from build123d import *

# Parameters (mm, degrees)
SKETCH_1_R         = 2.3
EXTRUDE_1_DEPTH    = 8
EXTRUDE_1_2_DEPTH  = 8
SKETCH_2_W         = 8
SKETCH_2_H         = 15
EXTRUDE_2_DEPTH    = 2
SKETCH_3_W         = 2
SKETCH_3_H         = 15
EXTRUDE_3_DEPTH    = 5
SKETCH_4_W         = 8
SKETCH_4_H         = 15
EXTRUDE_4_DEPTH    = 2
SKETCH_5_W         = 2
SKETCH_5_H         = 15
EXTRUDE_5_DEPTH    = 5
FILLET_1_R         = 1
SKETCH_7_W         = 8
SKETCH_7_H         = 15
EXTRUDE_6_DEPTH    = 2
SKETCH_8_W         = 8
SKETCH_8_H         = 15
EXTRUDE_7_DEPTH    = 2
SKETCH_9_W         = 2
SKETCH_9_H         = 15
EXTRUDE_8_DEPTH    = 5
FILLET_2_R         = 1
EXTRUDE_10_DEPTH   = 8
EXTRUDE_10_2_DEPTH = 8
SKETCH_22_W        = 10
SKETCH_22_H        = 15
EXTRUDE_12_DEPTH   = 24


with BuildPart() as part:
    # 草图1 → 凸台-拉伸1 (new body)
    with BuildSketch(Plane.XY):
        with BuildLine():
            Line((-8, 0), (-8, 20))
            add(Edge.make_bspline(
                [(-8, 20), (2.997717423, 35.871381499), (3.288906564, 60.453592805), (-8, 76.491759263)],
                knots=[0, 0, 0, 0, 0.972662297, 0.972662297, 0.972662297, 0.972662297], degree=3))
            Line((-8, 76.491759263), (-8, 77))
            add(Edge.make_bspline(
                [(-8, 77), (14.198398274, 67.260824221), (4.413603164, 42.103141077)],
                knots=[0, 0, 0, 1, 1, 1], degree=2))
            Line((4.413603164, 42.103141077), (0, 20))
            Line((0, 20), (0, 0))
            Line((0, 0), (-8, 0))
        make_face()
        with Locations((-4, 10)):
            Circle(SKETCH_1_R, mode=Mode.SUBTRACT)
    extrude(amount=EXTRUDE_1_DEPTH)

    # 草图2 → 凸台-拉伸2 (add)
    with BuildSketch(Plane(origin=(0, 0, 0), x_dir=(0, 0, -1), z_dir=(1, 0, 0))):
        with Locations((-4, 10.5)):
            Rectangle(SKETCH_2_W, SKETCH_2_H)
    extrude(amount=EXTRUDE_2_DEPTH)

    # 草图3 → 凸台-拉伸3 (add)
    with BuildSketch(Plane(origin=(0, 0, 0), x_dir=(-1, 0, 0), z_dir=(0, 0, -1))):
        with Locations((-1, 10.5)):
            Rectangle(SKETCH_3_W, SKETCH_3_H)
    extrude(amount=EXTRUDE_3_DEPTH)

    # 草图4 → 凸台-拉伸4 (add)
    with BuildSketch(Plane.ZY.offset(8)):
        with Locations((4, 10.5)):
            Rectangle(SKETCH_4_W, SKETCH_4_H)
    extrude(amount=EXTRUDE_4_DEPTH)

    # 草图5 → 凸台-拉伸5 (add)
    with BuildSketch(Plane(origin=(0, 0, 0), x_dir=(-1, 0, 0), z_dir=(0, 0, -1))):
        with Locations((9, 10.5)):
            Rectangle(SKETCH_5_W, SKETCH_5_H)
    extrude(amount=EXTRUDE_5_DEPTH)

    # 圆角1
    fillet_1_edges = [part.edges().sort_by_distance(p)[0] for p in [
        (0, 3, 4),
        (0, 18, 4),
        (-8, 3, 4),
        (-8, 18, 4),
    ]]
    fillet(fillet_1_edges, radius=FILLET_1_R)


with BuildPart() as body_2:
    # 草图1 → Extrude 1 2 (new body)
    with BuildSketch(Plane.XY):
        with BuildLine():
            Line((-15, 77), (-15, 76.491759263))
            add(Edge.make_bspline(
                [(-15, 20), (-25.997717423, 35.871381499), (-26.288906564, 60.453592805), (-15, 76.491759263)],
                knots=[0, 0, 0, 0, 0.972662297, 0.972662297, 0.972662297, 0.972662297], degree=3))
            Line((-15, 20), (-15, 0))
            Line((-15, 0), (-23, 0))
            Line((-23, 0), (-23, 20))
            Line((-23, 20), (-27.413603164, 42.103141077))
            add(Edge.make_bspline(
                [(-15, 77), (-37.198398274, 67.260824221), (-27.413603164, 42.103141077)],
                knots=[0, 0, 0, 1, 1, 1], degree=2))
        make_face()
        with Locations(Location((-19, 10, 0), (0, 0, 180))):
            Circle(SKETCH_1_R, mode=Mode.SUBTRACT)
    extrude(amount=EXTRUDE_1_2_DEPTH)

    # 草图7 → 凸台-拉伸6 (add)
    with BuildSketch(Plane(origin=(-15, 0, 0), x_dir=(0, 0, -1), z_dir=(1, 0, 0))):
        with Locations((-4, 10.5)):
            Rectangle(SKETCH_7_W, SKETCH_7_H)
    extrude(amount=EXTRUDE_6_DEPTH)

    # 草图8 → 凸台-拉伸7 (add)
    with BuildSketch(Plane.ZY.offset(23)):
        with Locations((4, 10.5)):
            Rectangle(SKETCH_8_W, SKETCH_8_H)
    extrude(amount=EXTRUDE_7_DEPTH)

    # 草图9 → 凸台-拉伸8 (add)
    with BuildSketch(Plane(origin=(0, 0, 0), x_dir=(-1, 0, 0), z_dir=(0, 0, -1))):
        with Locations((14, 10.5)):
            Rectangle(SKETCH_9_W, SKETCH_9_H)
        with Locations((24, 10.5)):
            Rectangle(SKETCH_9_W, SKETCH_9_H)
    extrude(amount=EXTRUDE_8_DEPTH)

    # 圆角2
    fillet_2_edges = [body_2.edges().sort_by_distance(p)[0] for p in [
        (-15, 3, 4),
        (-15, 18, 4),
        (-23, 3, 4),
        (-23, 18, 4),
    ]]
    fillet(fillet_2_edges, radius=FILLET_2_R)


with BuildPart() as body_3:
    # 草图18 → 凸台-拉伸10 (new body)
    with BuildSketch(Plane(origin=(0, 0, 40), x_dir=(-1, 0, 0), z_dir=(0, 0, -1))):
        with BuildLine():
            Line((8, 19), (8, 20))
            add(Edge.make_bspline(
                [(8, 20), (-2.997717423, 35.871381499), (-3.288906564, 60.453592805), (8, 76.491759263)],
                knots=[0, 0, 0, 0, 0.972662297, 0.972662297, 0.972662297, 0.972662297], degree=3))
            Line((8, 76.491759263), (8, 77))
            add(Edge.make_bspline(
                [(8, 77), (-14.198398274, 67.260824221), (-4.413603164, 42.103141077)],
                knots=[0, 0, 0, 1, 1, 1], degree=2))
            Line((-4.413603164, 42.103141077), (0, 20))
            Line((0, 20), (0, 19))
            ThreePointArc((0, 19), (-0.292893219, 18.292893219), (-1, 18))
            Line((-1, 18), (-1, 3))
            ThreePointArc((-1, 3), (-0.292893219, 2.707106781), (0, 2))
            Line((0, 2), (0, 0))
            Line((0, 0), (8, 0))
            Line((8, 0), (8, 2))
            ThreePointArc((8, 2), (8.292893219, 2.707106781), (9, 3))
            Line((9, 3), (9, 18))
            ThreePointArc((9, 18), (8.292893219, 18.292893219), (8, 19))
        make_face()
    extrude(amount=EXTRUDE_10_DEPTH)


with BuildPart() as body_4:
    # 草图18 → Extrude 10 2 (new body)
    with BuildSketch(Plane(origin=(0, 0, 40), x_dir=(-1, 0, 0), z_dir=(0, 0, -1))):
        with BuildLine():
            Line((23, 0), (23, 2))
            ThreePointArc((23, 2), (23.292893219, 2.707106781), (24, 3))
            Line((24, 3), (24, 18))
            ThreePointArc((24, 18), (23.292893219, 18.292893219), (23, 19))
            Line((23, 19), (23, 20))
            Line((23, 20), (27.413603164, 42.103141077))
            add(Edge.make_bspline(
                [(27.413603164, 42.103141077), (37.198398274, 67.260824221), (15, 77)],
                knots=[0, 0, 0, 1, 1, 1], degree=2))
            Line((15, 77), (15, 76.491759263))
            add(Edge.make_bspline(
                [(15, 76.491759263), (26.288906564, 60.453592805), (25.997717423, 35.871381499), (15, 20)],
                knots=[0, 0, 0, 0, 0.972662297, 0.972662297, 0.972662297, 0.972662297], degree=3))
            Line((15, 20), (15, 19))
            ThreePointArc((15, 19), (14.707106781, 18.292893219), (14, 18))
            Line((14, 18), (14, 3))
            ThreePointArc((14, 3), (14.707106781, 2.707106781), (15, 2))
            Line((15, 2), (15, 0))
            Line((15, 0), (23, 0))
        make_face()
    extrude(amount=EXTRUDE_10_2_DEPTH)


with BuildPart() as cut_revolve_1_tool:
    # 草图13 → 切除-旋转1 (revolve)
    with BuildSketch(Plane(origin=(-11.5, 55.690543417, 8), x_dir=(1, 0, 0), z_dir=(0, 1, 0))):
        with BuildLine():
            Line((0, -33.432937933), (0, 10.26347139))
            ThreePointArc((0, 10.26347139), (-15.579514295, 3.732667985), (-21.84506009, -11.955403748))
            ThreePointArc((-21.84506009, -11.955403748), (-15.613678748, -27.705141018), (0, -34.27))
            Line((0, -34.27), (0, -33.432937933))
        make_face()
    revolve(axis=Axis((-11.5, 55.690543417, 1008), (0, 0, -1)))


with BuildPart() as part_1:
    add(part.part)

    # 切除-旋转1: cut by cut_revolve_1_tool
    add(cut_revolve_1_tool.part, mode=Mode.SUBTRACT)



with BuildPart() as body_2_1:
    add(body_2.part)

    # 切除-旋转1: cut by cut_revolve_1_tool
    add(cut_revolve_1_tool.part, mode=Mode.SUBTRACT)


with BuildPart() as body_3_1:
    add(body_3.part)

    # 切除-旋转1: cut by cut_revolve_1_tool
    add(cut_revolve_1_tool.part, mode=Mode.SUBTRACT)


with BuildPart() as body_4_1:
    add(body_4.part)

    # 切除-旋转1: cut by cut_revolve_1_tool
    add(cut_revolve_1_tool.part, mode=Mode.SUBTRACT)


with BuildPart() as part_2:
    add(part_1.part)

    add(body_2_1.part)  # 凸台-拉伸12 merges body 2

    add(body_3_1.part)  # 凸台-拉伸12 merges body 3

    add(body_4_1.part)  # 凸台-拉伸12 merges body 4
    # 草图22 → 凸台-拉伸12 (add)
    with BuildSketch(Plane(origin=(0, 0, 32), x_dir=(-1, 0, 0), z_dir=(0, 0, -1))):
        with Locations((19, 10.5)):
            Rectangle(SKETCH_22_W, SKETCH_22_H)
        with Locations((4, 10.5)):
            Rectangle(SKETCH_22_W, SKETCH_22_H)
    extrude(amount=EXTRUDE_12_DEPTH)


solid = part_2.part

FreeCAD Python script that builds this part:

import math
import FreeCAD as App
import Part
import Sketcher
from FreeCAD import Vector


def edges_at(feature, points):
    """Names of the edges that pass closest to the given points."""
    edges = feature.Shape.Edges
    near = lambda p: min(range(len(edges)), key=lambda i: edges[i].distToShape(Part.Vertex(*p))[0])
    return sorted({f"Edge{near(p) + 1}" for p in points})

doc = App.newDocument("Part")
params = doc.addObject("Spreadsheet::Sheet", "Params")
for row, (alias, value) in enumerate([
    ("sketch1_diameter", "4.6 mm"),
    ("pad1_length", "8 mm"),
    ("sketch2_width", "15 mm"),
    ("sketch2_height", "8 mm"),
    ("pad2_length", "2 mm"),
    ("sketch3_width", "2 mm"),
    ("sketch3_height", "15 mm"),
    ("pad3_length", "5 mm"),
    ("sketch4_width", "15 mm"),
    ("sketch4_height", "8 mm"),
    ("pad4_length", "2 mm"),
    ("sketch5_width", "2 mm"),
    ("sketch5_height", "15 mm"),
    ("pad5_length", "5 mm"),
    ("fillet_radius", "1 mm"),
    ("sketch6_diameter", "4.6 mm"),
    ("sketch6_width", "8 mm"),
    ("pad6_length", "8 mm"),
    ("sketch7_width", "15 mm"),
    ("sketch7_height", "8 mm"),
    ("pad7_length", "2 mm"),
    ("sketch8_width", "15 mm"),
    ("sketch8_height", "8 mm"),
    ("pad8_length", "2 mm"),
    ("sketch9_width", "2 mm"),
    ("sketch9_height", "15 mm"),
    ("pad9_length", "5 mm"),
    ("fillet2_radius", "1 mm"),
    ("sketch10_radius", "1 mm"),
    ("sketch10_height", "1 mm"),
    ("sketch10_height2", "15 mm"),
    ("pad10_length", "8 mm"),
    ("sketch11_radius", "1 mm"),
    ("sketch11_width", "8 mm"),
    ("sketch11_height", "2 mm"),
    ("sketch11_height2", "15 mm"),
    ("pad11_length", "8 mm"),
    ("sketch12_radius", "21.85 mm"),
    ("revolution_angle", "360 deg"),
    ("sketch13_width", "10 mm"),
    ("sketch13_height", "15 mm"),
    ("pad12_length", "24 mm"),
], start=1):
    params.set(f"A{row}", alias)
    params.set(f"B{row}", "=" + value)
    params.setAlias(f"B{row}", alias)

body = doc.addObject("PartDesign::Body", "Body")

# Sketch on XY plane
sketch1 = body.newObject("Sketcher::SketchObject", "Sketch")
sketch1.AttachmentSupport = (doc.getObject("XY_Plane"), [""])
sketch1.MapMode = "FlatFace"
sketch1.addGeometry([
    Part.LineSegment(Vector(-8, 20, 0), Vector(-8, 0, 0)),  # 0
    Part.LineSegment(Vector(-8, 0, 0), Vector(0, 0, 0)),  # 1
    Part.LineSegment(Vector(0, 0, 0), Vector(0, 20, 0)),  # 2
    Part.LineSegment(Vector(0, 20, 0), Vector(4.413603, 42.103141, 0)),  # 3
    Part.BSplineCurve([Vector(-8, 77, 0), Vector(14.198398, 67.260824, 0), Vector(4.413603, 42.103141, 0)], [3, 3], [0, 1], False, 2, [1, 1, 1], False),  # 4
    Part.LineSegment(Vector(-8, 77, 0), Vector(-8, 76.491759, 0)),  # 5
    Part.BSplineCurve([Vector(-8, 20, 0), Vector(2.997717, 35.871381, 0), Vector(3.288907, 60.453593, 0), Vector(-8, 76.491759, 0)], [4, 4], [0, 0.972662297], False, 3, [1, 1, 1, 1], False),  # 6
    Part.Circle(Vector(-4, 10, 0), Vector(0, 0, 1), 2.3),  # 7
], False)
sketch1.addConstraint([
    Sketcher.Constraint("Block", 4),
    Sketcher.Constraint("Block", 6),
    Sketcher.Constraint("Coincident", 0, 2, 1, 1),
    Sketcher.Constraint("Coincident", 1, 2, 2, 1),
    Sketcher.Constraint("Coincident", 2, 2, 3, 1),
    Sketcher.Constraint("Coincident", 3, 2, 4, 2),
    Sketcher.Constraint("Coincident", 4, 1, 5, 1),
    Sketcher.Constraint("Coincident", 5, 2, 6, 2),
    Sketcher.Constraint("Coincident", 6, 1, 0, 1),
    Sketcher.Constraint("Vertical", 0),
    Sketcher.Constraint("Horizontal", 1),
    Sketcher.Constraint("Vertical", 2),
    Sketcher.Constraint("Coincident", 1, 2, -1, 1),
    Sketcher.Constraint("Equal", 0, 2),
    Sketcher.Constraint("Diameter", 7, 4.6),
    Sketcher.Constraint("DistanceX", 7, 3, -1, 1, 4.0),
    Sketcher.Constraint("DistanceY", -1, 1, 7, 3, 10.0),
])
sketch1.setExpression("Constraints[14]", "Params.sketch1_diameter")
pad1 = body.newObject("PartDesign::Pad", "Pad")
pad1.Profile = sketch1
pad1.setExpression("Length", "Params.pad1_length")

# Sketch on YZ plane
sketch2 = body.newObject("Sketcher::SketchObject", "Sketch001")
sketch2.AttachmentSupport = (doc.getObject("YZ_Plane"), [""])
sketch2.MapMode = "FlatFace"
sketch2.addGeometry([
    Part.LineSegment(Vector(18, 8, 0), Vector(3, 8, 0)),
    Part.LineSegment(Vector(3, 8, 0), Vector(3, 0, 0)),
    Part.LineSegment(Vector(3, 0, 0), Vector(18, 0, 0)),
    Part.LineSegment(Vector(18, 0, 0), Vector(18, 8, 0)),
], False)
sketch2.addConstraint([
    Sketcher.Constraint("Coincident", 0, 2, 1, 1),
    Sketcher.Constraint("Coincident", 1, 2, 2, 1),
    Sketcher.Constraint("Coincident", 2, 2, 3, 1),
    Sketcher.Constraint("Coincident", 3, 2, 0, 1),
    Sketcher.Constraint("Horizontal", 0),
    Sketcher.Constraint("Vertical", 1),
    Sketcher.Constraint("Horizontal", 2),
    Sketcher.Constraint("Vertical", 3),
    Sketcher.Constraint("PointOnObject", 1, 2, -1),
    Sketcher.Constraint("DistanceX", 0, 2, 0, 1, 15.0),
    Sketcher.Constraint("DistanceY", 1, 2, 1, 1, 8.0),
    Sketcher.Constraint("DistanceX", -1, 1, 0, 2, 3.0),
])
sketch2.setExpression("Constraints[9]", "Params.sketch2_width")
sketch2.setExpression("Constraints[10]", "Params.sketch2_height")
pad2 = body.newObject("PartDesign::Pad", "Pad001")
pad2.Profile = sketch2
pad2.setExpression("Length", "Params.pad2_length")

# Sketch on XY plane
sketch3 = body.newObject("Sketcher::SketchObject", "Sketch002")
sketch3.AttachmentSupport = (doc.getObject("XY_Plane"), [""])
sketch3.MapMode = "FlatFace"
sketch3.addGeometry([
    Part.LineSegment(Vector(2, 18, 0), Vector(2, 3, 0)),
    Part.LineSegment(Vector(2, 3, 0), Vector(0, 3, 0)),
    Part.LineSegment(Vector(0, 3, 0), Vector(0, 18, 0)),
    Part.LineSegment(Vector(0, 18, 0), Vector(2, 18, 0)),
], False)
sketch3.addConstraint([
    Sketcher.Constraint("Coincident", 0, 2, 1, 1),
    Sketcher.Constraint("Coincident", 1, 2, 2, 1),
    Sketcher.Constraint("Coincident", 2, 2, 3, 1),
    Sketcher.Constraint("Coincident", 3, 2, 0, 1),
    Sketcher.Constraint("Vertical", 0),
    Sketcher.Constraint("Horizontal", 1),
    Sketcher.Constraint("Vertical", 2),
    Sketcher.Constraint("Horizontal", 3),
    Sketcher.Constraint("PointOnObject", 1, 2, -2),
    Sketcher.Constraint("DistanceX", 1, 2, 1, 1, 2.0),
    Sketcher.Constraint("DistanceY", 0, 2, 0, 1, 15.0),
    Sketcher.Constraint("DistanceY", -1, 1, 0, 2, 3.0),
])
sketch3.setExpression("Constraints[9]", "Params.sketch3_width")
sketch3.setExpression("Constraints[10]", "Params.sketch3_height")
pad3 = body.newObject("PartDesign::Pad", "Pad002")
pad3.Profile = sketch3
pad3.setExpression("Length", "Params.pad3_length")
pad3.Reversed = True

# Sketch on YZ plane
sketch4 = body.newObject("Sketcher::SketchObject", "Sketch003")
sketch4.AttachmentSupport = (doc.getObject("YZ_Plane"), [""])
sketch4.MapMode = "FlatFace"
sketch4.AttachmentOffset = App.Placement(Vector(0, 0, -8), App.Rotation())
sketch4.addGeometry([
    Part.LineSegment(Vector(18, 0, 0), Vector(3, 0, 0)),
    Part.LineSegment(Vector(3, 0, 0), Vector(3, 8, 0)),
    Part.LineSegment(Vector(3, 8, 0), Vector(18, 8, 0)),
    Part.LineSegment(Vector(18, 8, 0), Vector(18, 0, 0)),
], False)
sketch4.addConstraint([
    Sketcher.Constraint("Coincident", 0, 2, 1, 1),
    Sketcher.Constraint("Coincident", 1, 2, 2, 1),
    Sketcher.Constraint("Coincident", 2, 2, 3, 1),
    Sketcher.Constraint("Coincident", 3, 2, 0, 1),
    Sketcher.Constraint("Horizontal", 0),
    Sketcher.Constraint("Vertical", 1),
    Sketcher.Constraint("Horizontal", 2),
    Sketcher.Constraint("Vertical", 3),
    Sketcher.Constraint("PointOnObject", 0, 2, -1),
    Sketcher.Constraint("DistanceX", 0, 2, 0, 1, 15.0),
    Sketcher.Constraint("DistanceY", 1, 1, 1, 2, 8.0),
    Sketcher.Constraint("DistanceX", -1, 1, 0, 2, 3.0),
])
sketch4.setExpression("Constraints[9]", "Params.sketch4_width")
sketch4.setExpression("Constraints[10]", "Params.sketch4_height")
pad4 = body.newObject("PartDesign::Pad", "Pad003")
pad4.Profile = sketch4
pad4.setExpression("Length", "Params.pad4_length")
pad4.Reversed = True

# Sketch on XY plane
sketch5 = body.newObject("Sketcher::SketchObject", "Sketch004")
sketch5.AttachmentSupport = (doc.getObject("XY_Plane"), [""])
sketch5.MapMode = "FlatFace"
sketch5.addGeometry([
    Part.LineSegment(Vector(-8, 18, 0), Vector(-8, 3, 0)),
    Part.LineSegment(Vector(-8, 3, 0), Vector(-10, 3, 0)),
    Part.LineSegment(Vector(-10, 3, 0), Vector(-10, 18, 0)),
    Part.LineSegment(Vector(-10, 18, 0), Vector(-8, 18, 0)),
], False)
sketch5.addConstraint([
    Sketcher.Constraint("Coincident", 0, 2, 1, 1),
    Sketcher.Constraint("Coincident", 1, 2, 2, 1),
    Sketcher.Constraint("Coincident", 2, 2, 3, 1),
    Sketcher.Constraint("Coincident", 3, 2, 0, 1),
    Sketcher.Constraint("Vertical", 0),
    Sketcher.Constraint("Horizontal", 1),
    Sketcher.Constraint("Vertical", 2),
    Sketcher.Constraint("Horizontal", 3),
    Sketcher.Constraint("DistanceX", 1, 2, 1, 1, 2.0),
    Sketcher.Constraint("DistanceY", 0, 2, 0, 1, 15.0),
    Sketcher.Constraint("DistanceX", 0, 2, -1, 1, 8.0),
    Sketcher.Constraint("DistanceY", -1, 1, 0, 2, 3.0),
])
sketch5.setExpression("Constraints[8]", "Params.sketch5_width")
sketch5.setExpression("Constraints[9]", "Params.sketch5_height")
pad5 = body.newObject("PartDesign::Pad", "Pad004")
pad5.Profile = sketch5
pad5.setExpression("Length", "Params.pad5_length")
pad5.Reversed = True
doc.recompute()

fillet = body.newObject("PartDesign::Fillet", "Fillet")
fillet.Base = (pad5, edges_at(pad5, [
    (0, 3, 4),
    (0, 18, 4),
    (-8, 3, 4),
    (-8, 18, 4),
]))
fillet.setExpression("Radius", "Params.fillet_radius")
body2 = doc.addObject("PartDesign::Body", "Body001")

# Sketch on XY plane
sketch6 = body2.newObject("Sketcher::SketchObject", "Sketch005")
sketch6.AttachmentSupport = (doc.getObject("XY_Plane001"), [""])
sketch6.MapMode = "FlatFace"
sketch6.addGeometry([
    Part.LineSegment(Vector(-15, 76.491759, 0), Vector(-15, 77, 0)),  # 0
    Part.BSplineCurve([Vector(-15, 77, 0), Vector(-37.198398, 67.260824, 0), Vector(-27.413603, 42.103141, 0)], [3, 3], [0, 1], False, 2, [1, 1, 1], False),  # 1
    Part.LineSegment(Vector(-27.413603, 42.103141, 0), Vector(-23, 20, 0)),  # 2
    Part.LineSegment(Vector(-23, 20, 0), Vector(-23, 0, 0)),  # 3
    Part.LineSegment(Vector(-23, 0, 0), Vector(-15, 0, 0)),  # 4
    Part.LineSegment(Vector(-15, 0, 0), Vector(-15, 20, 0)),  # 5
    Part.BSplineCurve([Vector(-15, 20, 0), Vector(-25.997717, 35.871381, 0), Vector(-26.288907, 60.453593, 0), Vector(-15, 76.491759, 0)], [4, 4], [0, 0.972662297], False, 3, [1, 1, 1, 1], False),  # 6
    Part.Circle(Vector(-19, 10, 0), Vector(0, 0, 1), 2.3),  # 7
], False)
sketch6.addConstraint([
    Sketcher.Constraint("Block", 1),
    Sketcher.Constraint("Block", 6),
    Sketcher.Constraint("Coincident", 0, 2, 1, 1),
    Sketcher.Constraint("Coincident", 1, 2, 2, 1),
    Sketcher.Constraint("Coincident", 2, 2, 3, 1),
    Sketcher.Constraint("Coincident", 3, 2, 4, 1),
    Sketcher.Constraint("Coincident", 4, 2, 5, 1),
    Sketcher.Constraint("Coincident", 5, 2, 6, 1),
    Sketcher.Constraint("Coincident", 6, 2, 0, 1),
    Sketcher.Constraint("Vertical", 3),
    Sketcher.Constraint("Horizontal", 4),
    Sketcher.Constraint("Vertical", 5),
    Sketcher.Constraint("PointOnObject", 3, 2, -1),
    Sketcher.Constraint("Horizontal", 2, 2, 5, 2),
    Sketcher.Constraint("Diameter", 7, 4.6),
    Sketcher.Constraint("DistanceX", 4, 1, 4, 2, 8.0),
    Sketcher.Constraint("DistanceX", 7, 3, -1, 1, 19.0),
    Sketcher.Constraint("DistanceY", -1, 1, 7, 3, 10.0),
])
sketch6.setExpression("Constraints[14]", "Params.sketch6_diameter")
sketch6.setExpression("Constraints[15]", "Params.sketch6_width")
pad6 = body2.newObject("PartDesign::Pad", "Pad005")
pad6.Profile = sketch6
pad6.setExpression("Length", "Params.pad6_length")

# Sketch on YZ plane
sketch7 = body2.newObject("Sketcher::SketchObject", "Sketch006")
sketch7.AttachmentSupport = (doc.getObject("YZ_Plane001"), [""])
sketch7.MapMode = "FlatFace"
sketch7.AttachmentOffset = App.Placement(Vector(0, 0, -15), App.Rotation())
sketch7.addGeometry([
    Part.LineSegment(Vector(18, 8, 0), Vector(3, 8, 0)),
    Part.LineSegment(Vector(3, 8, 0), Vector(3, 0, 0)),
    Part.LineSegment(Vector(3, 0, 0), Vector(18, 0, 0)),
    Part.LineSegment(Vector(18, 0, 0), Vector(18, 8, 0)),
], False)
sketch7.addConstraint([
    Sketcher.Constraint("Coincident", 0, 2, 1, 1),
    Sketcher.Constraint("Coincident", 1, 2, 2, 1),
    Sketcher.Constraint("Coincident", 2, 2, 3, 1),
    Sketcher.Constraint("Coincident", 3, 2, 0, 1),
    Sketcher.Constraint("Horizontal", 0),
    Sketcher.Constraint("Vertical", 1),
    Sketcher.Constraint("Horizontal", 2),
    Sketcher.Constraint("Vertical", 3),
    Sketcher.Constraint("PointOnObject", 1, 2, -1),
    Sketcher.Constraint("DistanceX", 0, 2, 0, 1, 15.0),
    Sketcher.Constraint("DistanceY", 1, 2, 1, 1, 8.0),
    Sketcher.Constraint("DistanceX", -1, 1, 0, 2, 3.0),
])
sketch7.setExpression("Constraints[9]", "Params.sketch7_width")
sketch7.setExpression("Constraints[10]", "Params.sketch7_height")
pad7 = body2.newObject("PartDesign::Pad", "Pad006")
pad7.Profile = sketch7
pad7.setExpression("Length", "Params.pad7_length")

# Sketch on YZ plane
sketch8 = body2.newObject("Sketcher::SketchObject", "Sketch007")
sketch8.AttachmentSupport = (doc.getObject("YZ_Plane001"), [""])
sketch8.MapMode = "FlatFace"
sketch8.AttachmentOffset = App.Placement(Vector(0, 0, -23), App.Rotation())
sketch8.addGeometry([
    Part.LineSegment(Vector(18, 0, 0), Vector(3, 0, 0)),
    Part.LineSegment(Vector(3, 0, 0), Vector(3, 8, 0)),
    Part.LineSegment(Vector(3, 8, 0), Vector(18, 8, 0)),
    Part.LineSegment(Vector(18, 8, 0), Vector(18, 0, 0)),
], False)
sketch8.addConstraint([
    Sketcher.Constraint("Coincident", 0, 2, 1, 1),
    Sketcher.Constraint("Coincident", 1, 2, 2, 1),
    Sketcher.Constraint("Coincident", 2, 2, 3, 1),
    Sketcher.Constraint("Coincident", 3, 2, 0, 1),
    Sketcher.Constraint("Horizontal", 0),
    Sketcher.Constraint("Vertical", 1),
    Sketcher.Constraint("Horizontal", 2),
    Sketcher.Constraint("Vertical", 3),
    Sketcher.Constraint("PointOnObject", 0, 2, -1),
    Sketcher.Constraint("DistanceX", 0, 2, 0, 1, 15.0),
    Sketcher.Constraint("DistanceY", 1, 1, 1, 2, 8.0),
    Sketcher.Constraint("DistanceX", -1, 1, 0, 2, 3.0),
])
sketch8.setExpression("Constraints[9]", "Params.sketch8_width")
sketch8.setExpression("Constraints[10]", "Params.sketch8_height")
pad8 = body2.newObject("PartDesign::Pad", "Pad007")
pad8.Profile = sketch8
pad8.setExpression("Length", "Params.pad8_length")
pad8.Reversed = True

# Sketch on XY plane
sketch9 = body2.newObject("Sketcher::SketchObject", "Sketch008")
sketch9.AttachmentSupport = (doc.getObject("XY_Plane001"), [""])
sketch9.MapMode = "FlatFace"
sketch9.addGeometry([
    Part.LineSegment(Vector(-13, 18, 0), Vector(-13, 3, 0)),  # 0
    Part.LineSegment(Vector(-13, 3, 0), Vector(-15, 3, 0)),  # 1
    Part.LineSegment(Vector(-15, 3, 0), Vector(-15, 18, 0)),  # 2
    Part.LineSegment(Vector(-15, 18, 0), Vector(-13, 18, 0)),  # 3
    Part.LineSegment(Vector(-23, 18, 0), Vector(-23, 3, 0)),  # 4
    Part.LineSegment(Vector(-23, 3, 0), Vector(-25, 3, 0)),  # 5
    Part.LineSegment(Vector(-25, 3, 0), Vector(-25, 18, 0)),  # 6
    Part.LineSegment(Vector(-25, 18, 0), Vector(-23, 18, 0)),  # 7
], False)
sketch9.addConstraint([
    Sketcher.Constraint("Coincident", 0, 2, 1, 1),
    Sketcher.Constraint("Coincident", 1, 2, 2, 1),
    Sketcher.Constraint("Coincident", 2, 2, 3, 1),
    Sketcher.Constraint("Coincident", 3, 2, 0, 1),
    Sketcher.Constraint("Coincident", 4, 2, 5, 1),
    Sketcher.Constraint("Coincident", 5, 2, 6, 1),
    Sketcher.Constraint("Coincident", 6, 2, 7, 1),
    Sketcher.Constraint("Coincident", 7, 2, 4, 1),
    Sketcher.Constraint("Vertical", 0),
    Sketcher.Constraint("Horizontal", 1),
    Sketcher.Constraint("Vertical", 2),
    Sketcher.Constraint("Horizontal", 3),
    Sketcher.Constraint("Vertical", 4),
    Sketcher.Constraint("Horizontal", 5),
    Sketcher.Constraint("Vertical", 6),
    Sketcher.Constraint("Horizontal", 7),
    Sketcher.Constraint("Horizontal", 1, 2, 4, 2),
    Sketcher.Constraint("Horizontal", 3, 2, 6, 2),
    Sketcher.Constraint("Equal", 3, 5),
    Sketcher.Constraint("DistanceX", 1, 2, 1, 1, 2.0),
    Sketcher.Constraint("DistanceY", 0, 2, 0, 1, 15.0),
    Sketcher.Constraint("DistanceX", 0, 2, -1, 1, 13.0),
    Sketcher.Constraint("DistanceY", -1, 1, 0, 2, 3.0),
    Sketcher.Constraint("DistanceX", 4, 2, -1, 1, 23.0),
])
sketch9.setExpression("Constraints[19]", "Params.sketch9_width")
sketch9.setExpression("Constraints[20]", "Params.sketch9_height")
pad9 = body2.newObject("PartDesign::Pad", "Pad008")
pad9.Profile = sketch9
pad9.setExpression("Length", "Params.pad9_length")
pad9.Reversed = True
doc.recompute()

fillet2 = body2.newObject("PartDesign::Fillet", "Fillet001")
fillet2.Base = (pad9, edges_at(pad9, [
    (-15, 3, 4),
    (-15, 18, 4),
    (-23, 3, 4),
    (-23, 18, 4),
]))
fillet2.setExpression("Radius", "Params.fillet2_radius")
body3 = doc.addObject("PartDesign::Body", "Body002")

# Sketch on XY plane
sketch10 = body3.newObject("Sketcher::SketchObject", "Sketch009")
sketch10.AttachmentSupport = (doc.getObject("XY_Plane002"), [""])
sketch10.MapMode = "FlatFace"
sketch10.AttachmentOffset = App.Placement(Vector(0, 0, 40), App.Rotation())
sketch10.addGeometry([
    Part.LineSegment(Vector(-8, 19, 0), Vector(-8, 20, 0)),  # 0
    Part.BSplineCurve([Vector(-8, 20, 0), Vector(2.997717, 35.871381, 0), Vector(3.288907, 60.453593, 0), Vector(-8, 76.491759, 0)], [4, 4], [0, 0.972662297], False, 3, [1, 1, 1, 1], False),  # 1
    Part.LineSegment(Vector(-8, 76.491759, 0), Vector(-8, 77, 0)),  # 2
    Part.BSplineCurve([Vector(-8, 77, 0), Vector(14.198398, 67.260824, 0), Vector(4.413603, 42.103141, 0)], [3, 3], [0, 1], False, 2, [1, 1, 1], False),  # 3
    Part.LineSegment(Vector(4.413603, 42.103141, 0), Vector(0, 20, 0)),  # 4
    Part.LineSegment(Vector(0, 20, 0), Vector(0, 19, 0)),  # 5
    Part.ArcOfCircle(Part.Circle(Vector(1, 19, 0), Vector(0, 0, 1), 1), math.radians(-180), math.radians(-90)),  # 6
    Part.LineSegment(Vector(1, 18, 0), Vector(1, 3, 0)),  # 7
    Part.ArcOfCircle(Part.Circle(Vector(1, 2, 0), Vector(0, 0, 1), 1), math.radians(90), math.radians(180)),  # 8
    Part.LineSegment(Vector(0, 2, 0), Vector(0, 0, 0)),  # 9
    Part.LineSegment(Vector(0, 0, 0), Vector(-8, 0, 0)),  # 10
    Part.LineSegment(Vector(-8, 0, 0), Vector(-8, 2, 0)),  # 11
    Part.ArcOfCircle(Part.Circle(Vector(-9, 2, 0), Vector(0, 0, 1), 1), math.radians(0), math.radians(90)),  # 12
    Part.LineSegment(Vector(-9, 3, 0), Vector(-9, 18, 0)),  # 13
    Part.ArcOfCircle(Part.Circle(Vector(-9, 19, 0), Vector(0, 0, 1), 1), math.radians(-90), math.radians(0)),  # 14
], False)
sketch10.addConstraint([
    Sketcher.Constraint("Block", 1),
    Sketcher.Constraint("Block", 3),
    Sketcher.Constraint("Coincident", 0, 2, 1, 1),
    Sketcher.Constraint("Coincident", 1, 2, 2, 1),
    Sketcher.Constraint("Coincident", 2, 2, 3, 1),
    Sketcher.Constraint("Coincident", 3, 2, 4, 1),
    Sketcher.Constraint("Coincident", 4, 2, 5, 1),
    Sketcher.Constraint("Tangent", 5, 2, 6, 1),
    Sketcher.Constraint("Coincident", 6, 2, 7, 1),
    Sketcher.Constraint("Coincident", 7, 2, 8, 1),
    Sketcher.Constraint("Tangent", 8, 2, 9, 1),
    Sketcher.Constraint("Coincident", 9, 2, 10, 1),
    Sketcher.Constraint("Coincident", 10, 2, 11, 1),
    Sketcher.Constraint("Tangent", 11, 2, 12, 1),
    Sketcher.Constraint("Coincident", 12, 2, 13, 1),
    Sketcher.Constraint("Coincident", 13, 2, 14, 1),
    Sketcher.Constraint("Tangent", 14, 2, 0, 1),
    Sketcher.Constraint("Vertical", 0),
    Sketcher.Constraint("Vertical", 5),
    Sketcher.Constraint("Vertical", 7),
    Sketcher.Constraint("Vertical", 9),
    Sketcher.Constraint("Horizontal", 10),
    Sketcher.Constraint("Vertical", 11),
    Sketcher.Constraint("Vertical", 13),
    Sketcher.Constraint("Coincident", 9, 2, -1, 1),
    Sketcher.Constraint("Equal", 6, 8),
    Sketcher.Constraint("Equal", 8, 12),
    Sketcher.Constraint("Equal", 12, 14),
    Sketcher.Constraint("PointOnObject", 4, 2, -2),
    Sketcher.Constraint("Horizontal", 8, 3, 12, 3),
    Sketcher.Constraint("Horizontal", 6, 3, 14, 3),
    Sketcher.Constraint("Horizontal", 0, 2, 4, 2),
    Sketcher.Constraint("Vertical", 12, 3, 14, 3),
    Sketcher.Constraint("Vertical", 8, 3, 6, 2),
    Sketcher.Constraint("Vertical", 14, 3, 12, 2),
    Sketcher.Constraint("Radius", 6, 1.0),
    Sketcher.Constraint("DistanceY", 0, 1, 0, 2, 1.0),
    Sketcher.Constraint("DistanceY", 7, 2, 7, 1, 15.0),
])
sketch10.setExpression("Constraints[35]", "Params.sketch10_radius")
sketch10.setExpression("Constraints[36]", "Params.sketch10_height")
sketch10.setExpression("Constraints[37]", "Params.sketch10_height2")
pad10 = body3.newObject("PartDesign::Pad", "Pad009")
pad10.Profile = sketch10
pad10.setExpression("Length", "Params.pad10_length")
pad10.Reversed = True
body4 = doc.addObject("PartDesign::Body", "Body003")

# Sketch on XY plane
sketch11 = body4.newObject("Sketcher::SketchObject", "Sketch010")
sketch11.AttachmentSupport = (doc.getObject("XY_Plane003"), [""])
sketch11.MapMode = "FlatFace"
sketch11.AttachmentOffset = App.Placement(Vector(0, 0, 40), App.Rotation())
sketch11.addGeometry([
    Part.LineSegment(Vector(-23, 0, 0), Vector(-23, 2, 0)),  # 0
    Part.ArcOfCircle(Part.Circle(Vector(-24, 2, 0), Vector(0, 0, 1), 1), math.radians(0), math.radians(90)),  # 1
    Part.LineSegment(Vector(-24, 3, 0), Vector(-24, 18, 0)),  # 2
    Part.ArcOfCircle(Part.Circle(Vector(-24, 19, 0), Vector(0, 0, 1), 1), math.radians(-90), math.radians(0)),  # 3
    Part.LineSegment(Vector(-23, 19, 0), Vector(-23, 20, 0)),  # 4
    Part.LineSegment(Vector(-23, 20, 0), Vector(-27.413603, 42.103141, 0)),  # 5
    Part.BSplineCurve([Vector(-27.413603, 42.103141, 0), Vector(-37.198398, 67.260824, 0), Vector(-15, 77, 0)], [3, 3], [0, 1], False, 2, [1, 1, 1], False),  # 6
    Part.LineSegment(Vector(-15, 77, 0), Vector(-15, 76.491759, 0)),  # 7
    Part.BSplineCurve([Vector(-15, 76.491759, 0), Vector(-26.288907, 60.453593, 0), Vector(-25.997717, 35.871381, 0), Vector(-15, 20, 0)], [4, 4], [0, 0.972662297], False, 3, [1, 1, 1, 1], False),  # 8
    Part.LineSegment(Vector(-15, 20, 0), Vector(-15, 19, 0)),  # 9
    Part.ArcOfCircle(Part.Circle(Vector(-14, 19, 0), Vector(0, 0, 1), 1), math.radians(-180), math.radians(-90)),  # 10
    Part.LineSegment(Vector(-14, 18, 0), Vector(-14, 3, 0)),  # 11
    Part.ArcOfCircle(Part.Circle(Vector(-14, 2, 0), Vector(0, 0, 1), 1), math.radians(90), math.radians(180)),  # 12
    Part.LineSegment(Vector(-15, 2, 0), Vector(-15, 0, 0)),  # 13
    Part.LineSegment(Vector(-15, 0, 0), Vector(-23, 0, 0)),  # 14
], False)
sketch11.addConstraint([
    Sketcher.Constraint("Block", 6),
    Sketcher.Constraint("Block", 8),
    Sketcher.Constraint("Tangent", 0, 2, 1, 1),
    Sketcher.Constraint("Coincident", 1, 2, 2, 1),
    Sketcher.Constraint("Coincident", 2, 2, 3, 1),
    Sketcher.Constraint("Tangent", 3, 2, 4, 1),
    Sketcher.Constraint("Coincident", 4, 2, 5, 1),
    Sketcher.Constraint("Coincident", 5, 2, 6, 1),
    Sketcher.Constraint("Coincident", 6, 2, 7, 1),
    Sketcher.Constraint("Coincident", 7, 2, 8, 1),
    Sketcher.Constraint("Coincident", 8, 2, 9, 1),
    Sketcher.Constraint("Tangent", 9, 2, 10, 1),
    Sketcher.Constraint("Coincident", 10, 2, 11, 1),
    Sketcher.Constraint("Coincident", 11, 2, 12, 1),
    Sketcher.Constraint("Tangent", 12, 2, 13, 1),
    Sketcher.Constraint("Coincident", 13, 2, 14, 1),
    Sketcher.Constraint("Coincident", 14, 2, 0, 1),
    Sketcher.Constraint("Vertical", 0),
    Sketcher.Constraint("Vertical", 2),
    Sketcher.Constraint("Vertical", 4),
    Sketcher.Constraint("Vertical", 9),
    Sketcher.Constraint("Vertical", 11),
    Sketcher.Constraint("Vertical", 13),
    Sketcher.Constraint("Horizontal", 14),
    Sketcher.Constraint("Equal", 1, 3),
    Sketcher.Constraint("Equal", 3, 10),
    Sketcher.Constraint("Equal", 10, 12),
    Sketcher.Constraint("PointOnObject", 13, 2, -1),
    Sketcher.Constraint("Horizontal", 3, 3, 10, 3),
    Sketcher.Constraint("Horizontal", 1, 3, 12, 3),
    Sketcher.Constraint("Vertical", 1, 3, 3, 3),
    Sketcher.Constraint("Vertical", 10, 3, 12, 3),
    Sketcher.Constraint("Vertical", 3, 3, 1, 2),
    Sketcher.Constraint("Vertical", 12, 3, 10, 2),
    Sketcher.Constraint("Equal", 4, 9),
    Sketcher.Constraint("Radius", 1, 1.0),
    Sketcher.Constraint("DistanceX", 14, 2, 14, 1, 8.0),
    Sketcher.Constraint("DistanceY", 0, 1, 0, 2, 2.0),
    Sketcher.Constraint("DistanceY", 2, 1, 2, 2, 15.0),
])
sketch11.setExpression("Constraints[35]", "Params.sketch11_radius")
sketch11.setExpression("Constraints[36]", "Params.sketch11_width")
sketch11.setExpression("Constraints[37]", "Params.sketch11_height")
sketch11.setExpression("Constraints[38]", "Params.sketch11_height2")
pad11 = body4.newObject("PartDesign::Pad", "Pad010")
pad11.Profile = sketch11
pad11.setExpression("Length", "Params.pad11_length")
pad11.Reversed = True
body5 = doc.addObject("PartDesign::Body", "Body004")

# Sketch on XZ plane
sketch12 = body5.newObject("Sketcher::SketchObject", "Sketch011")
sketch12.AttachmentSupport = (doc.getObject("XZ_Plane004"), [""])
sketch12.MapMode = "FlatFace"
sketch12.AttachmentOffset = App.Placement(Vector(0, 0, -55.690543), App.Rotation())
sketch12.addGeometry([
    Part.ArcOfCircle(Part.Circle(Vector(-11, 20, 0), Vector(0, 0, 1), 22), math.radians(179), math.radians(270)),
    Part.ArcOfCircle(Part.Circle(Vector(-11, 20, 0), Vector(0, 0, 1), 22), math.radians(90), math.radians(181)),
    Part.LineSegment(Vector(-12, 42, 0), Vector(-12, -2, 0)),
], False)
sketch12.addGeometry(Part.LineSegment(Vector(-12, 42, 0), Vector(-12, -2, 0)), True)  # axis
sketch12.addConstraint([
    Sketcher.Constraint("Coincident", 0, 1, 1, 2),
    Sketcher.Constraint("Coincident", 1, 1, 2, 1),
    Sketcher.Constraint("Coincident", 2, 2, 0, 2),
    Sketcher.Constraint("Vertical", 2),
    Sketcher.Constraint("Vertical", 3),
    Sketcher.Constraint("Coincident", 3, 1, 1, 1),
    Sketcher.Constraint("Vertical", 0, 3, 1, 3),
    Sketcher.Constraint("Vertical", 0, 3, 1, 1),
    Sketcher.Constraint("Equal", 2, 3),
    Sketcher.Constraint("Radius", 1, 21.85),
    Sketcher.Constraint("DistanceX", 0, 3, -1, 1, 11.5),
    Sketcher.Constraint("DistanceY", -1, 1, 1, 3, 20.42),
    Sketcher.Constraint("Radius", 0, 21.848205),
    Sketcher.Constraint("DistanceY", 2, 2, 2, 1, 44.533471),
])
sketch12.setExpression("Constraints[9]", "Params.sketch12_radius")
revolution = body5.newObject("PartDesign::Revolution", "Revolution")
revolution.Profile = sketch12
revolution.ReferenceAxis = (sketch12, ["Axis0"])
revolution.setExpression("Angle", "Params.revolution_angle")
doc.recompute()

body6 = doc.addObject("PartDesign::Body", "Body005")
body6.BaseFeature = body5
boolean = body.newObject("PartDesign::Boolean", "Boolean")
boolean.Type = "Cut"
boolean.addObjects([body6])
doc.recompute()

body7 = doc.addObject("PartDesign::Body", "Body006")
body7.BaseFeature = body5
boolean2 = body2.newObject("PartDesign::Boolean", "Boolean001")
boolean2.Type = "Cut"
boolean2.addObjects([body7])
doc.recompute()

body8 = doc.addObject("PartDesign::Body", "Body007")
body8.BaseFeature = body5
boolean3 = body3.newObject("PartDesign::Boolean", "Boolean002")
boolean3.Type = "Cut"
boolean3.addObjects([body8])
doc.recompute()

boolean4 = body4.newObject("PartDesign::Boolean", "Boolean003")
boolean4.Type = "Cut"
boolean4.addObjects([body5])
body.AllowCompound = True
doc.recompute()

boolean5 = body.newObject("PartDesign::Boolean", "Boolean004")
boolean5.Type = "Fuse"
boolean5.addObjects([body2])
doc.recompute()

boolean6 = body.newObject("PartDesign::Boolean", "Boolean005")
boolean6.Type = "Fuse"
boolean6.addObjects([body3])
doc.recompute()

boolean7 = body.newObject("PartDesign::Boolean", "Boolean006")
boolean7.Type = "Fuse"
boolean7.addObjects([body4])

# Sketch on XY plane
sketch13 = body.newObject("Sketcher::SketchObject", "Sketch012")
sketch13.AttachmentSupport = (doc.getObject("XY_Plane"), [""])
sketch13.MapMode = "FlatFace"
sketch13.AttachmentOffset = App.Placement(Vector(0, 0, 32), App.Rotation())
sketch13.addGeometry([
    Part.LineSegment(Vector(-14, 18, 0), Vector(-14, 3, 0)),  # 0
    Part.LineSegment(Vector(-14, 3, 0), Vector(-24, 3, 0)),  # 1
    Part.LineSegment(Vector(-24, 3, 0), Vector(-24, 18, 0)),  # 2
    Part.LineSegment(Vector(-24, 18, 0), Vector(-14, 18, 0)),  # 3
    Part.LineSegment(Vector(1, 18, 0), Vector(1, 3, 0)),  # 4
    Part.LineSegment(Vector(1, 3, 0), Vector(-9, 3, 0)),  # 5
    Part.LineSegment(Vector(-9, 3, 0), Vector(-9, 18, 0)),  # 6
    Part.LineSegment(Vector(-9, 18, 0), Vector(1, 18, 0)),  # 7
], False)
sketch13.addConstraint([
    Sketcher.Constraint("Coincident", 0, 2, 1, 1),
    Sketcher.Constraint("Coincident", 1, 2, 2, 1),
    Sketcher.Constraint("Coincident", 2, 2, 3, 1),
    Sketcher.Constraint("Coincident", 3, 2, 0, 1),
    Sketcher.Constraint("Coincident", 4, 2, 5, 1),
    Sketcher.Constraint("Coincident", 5, 2, 6, 1),
    Sketcher.Constraint("Coincident", 6, 2, 7, 1),
    Sketcher.Constraint("Coincident", 7, 2, 4, 1),
    Sketcher.Constraint("Vertical", 0),
    Sketcher.Constraint("Horizontal", 1),
    Sketcher.Constraint("Vertical", 2),
    Sketcher.Constraint("Horizontal", 3),
    Sketcher.Constraint("Vertical", 4),
    Sketcher.Constraint("Horizontal", 5),
    Sketcher.Constraint("Vertical", 6),
    Sketcher.Constraint("Horizontal", 7),
    Sketcher.Constraint("Horizontal", 1, 2, 4, 2),
    Sketcher.Constraint("Horizontal", 3, 2, 6, 2),
    Sketcher.Constraint("Equal", 3, 5),
    Sketcher.Constraint("DistanceX", 1, 2, 1, 1, 10.0),
    Sketcher.Constraint("DistanceY", 0, 2, 0, 1, 15.0),
    Sketcher.Constraint("DistanceX", 0, 2, -1, 1, 14.0),
    Sketcher.Constraint("DistanceY", -1, 1, 0, 2, 3.0),
    Sketcher.Constraint("DistanceX", -1, 1, 4, 2, 1.0),
])
sketch13.setExpression("Constraints[19]", "Params.sketch13_width")
sketch13.setExpression("Constraints[20]", "Params.sketch13_height")
pad12 = body.newObject("PartDesign::Pad", "Pad011")
pad12.Profile = sketch13
pad12.setExpression("Length", "Params.pad12_length")
pad12.Reversed = True

doc.recompute()
